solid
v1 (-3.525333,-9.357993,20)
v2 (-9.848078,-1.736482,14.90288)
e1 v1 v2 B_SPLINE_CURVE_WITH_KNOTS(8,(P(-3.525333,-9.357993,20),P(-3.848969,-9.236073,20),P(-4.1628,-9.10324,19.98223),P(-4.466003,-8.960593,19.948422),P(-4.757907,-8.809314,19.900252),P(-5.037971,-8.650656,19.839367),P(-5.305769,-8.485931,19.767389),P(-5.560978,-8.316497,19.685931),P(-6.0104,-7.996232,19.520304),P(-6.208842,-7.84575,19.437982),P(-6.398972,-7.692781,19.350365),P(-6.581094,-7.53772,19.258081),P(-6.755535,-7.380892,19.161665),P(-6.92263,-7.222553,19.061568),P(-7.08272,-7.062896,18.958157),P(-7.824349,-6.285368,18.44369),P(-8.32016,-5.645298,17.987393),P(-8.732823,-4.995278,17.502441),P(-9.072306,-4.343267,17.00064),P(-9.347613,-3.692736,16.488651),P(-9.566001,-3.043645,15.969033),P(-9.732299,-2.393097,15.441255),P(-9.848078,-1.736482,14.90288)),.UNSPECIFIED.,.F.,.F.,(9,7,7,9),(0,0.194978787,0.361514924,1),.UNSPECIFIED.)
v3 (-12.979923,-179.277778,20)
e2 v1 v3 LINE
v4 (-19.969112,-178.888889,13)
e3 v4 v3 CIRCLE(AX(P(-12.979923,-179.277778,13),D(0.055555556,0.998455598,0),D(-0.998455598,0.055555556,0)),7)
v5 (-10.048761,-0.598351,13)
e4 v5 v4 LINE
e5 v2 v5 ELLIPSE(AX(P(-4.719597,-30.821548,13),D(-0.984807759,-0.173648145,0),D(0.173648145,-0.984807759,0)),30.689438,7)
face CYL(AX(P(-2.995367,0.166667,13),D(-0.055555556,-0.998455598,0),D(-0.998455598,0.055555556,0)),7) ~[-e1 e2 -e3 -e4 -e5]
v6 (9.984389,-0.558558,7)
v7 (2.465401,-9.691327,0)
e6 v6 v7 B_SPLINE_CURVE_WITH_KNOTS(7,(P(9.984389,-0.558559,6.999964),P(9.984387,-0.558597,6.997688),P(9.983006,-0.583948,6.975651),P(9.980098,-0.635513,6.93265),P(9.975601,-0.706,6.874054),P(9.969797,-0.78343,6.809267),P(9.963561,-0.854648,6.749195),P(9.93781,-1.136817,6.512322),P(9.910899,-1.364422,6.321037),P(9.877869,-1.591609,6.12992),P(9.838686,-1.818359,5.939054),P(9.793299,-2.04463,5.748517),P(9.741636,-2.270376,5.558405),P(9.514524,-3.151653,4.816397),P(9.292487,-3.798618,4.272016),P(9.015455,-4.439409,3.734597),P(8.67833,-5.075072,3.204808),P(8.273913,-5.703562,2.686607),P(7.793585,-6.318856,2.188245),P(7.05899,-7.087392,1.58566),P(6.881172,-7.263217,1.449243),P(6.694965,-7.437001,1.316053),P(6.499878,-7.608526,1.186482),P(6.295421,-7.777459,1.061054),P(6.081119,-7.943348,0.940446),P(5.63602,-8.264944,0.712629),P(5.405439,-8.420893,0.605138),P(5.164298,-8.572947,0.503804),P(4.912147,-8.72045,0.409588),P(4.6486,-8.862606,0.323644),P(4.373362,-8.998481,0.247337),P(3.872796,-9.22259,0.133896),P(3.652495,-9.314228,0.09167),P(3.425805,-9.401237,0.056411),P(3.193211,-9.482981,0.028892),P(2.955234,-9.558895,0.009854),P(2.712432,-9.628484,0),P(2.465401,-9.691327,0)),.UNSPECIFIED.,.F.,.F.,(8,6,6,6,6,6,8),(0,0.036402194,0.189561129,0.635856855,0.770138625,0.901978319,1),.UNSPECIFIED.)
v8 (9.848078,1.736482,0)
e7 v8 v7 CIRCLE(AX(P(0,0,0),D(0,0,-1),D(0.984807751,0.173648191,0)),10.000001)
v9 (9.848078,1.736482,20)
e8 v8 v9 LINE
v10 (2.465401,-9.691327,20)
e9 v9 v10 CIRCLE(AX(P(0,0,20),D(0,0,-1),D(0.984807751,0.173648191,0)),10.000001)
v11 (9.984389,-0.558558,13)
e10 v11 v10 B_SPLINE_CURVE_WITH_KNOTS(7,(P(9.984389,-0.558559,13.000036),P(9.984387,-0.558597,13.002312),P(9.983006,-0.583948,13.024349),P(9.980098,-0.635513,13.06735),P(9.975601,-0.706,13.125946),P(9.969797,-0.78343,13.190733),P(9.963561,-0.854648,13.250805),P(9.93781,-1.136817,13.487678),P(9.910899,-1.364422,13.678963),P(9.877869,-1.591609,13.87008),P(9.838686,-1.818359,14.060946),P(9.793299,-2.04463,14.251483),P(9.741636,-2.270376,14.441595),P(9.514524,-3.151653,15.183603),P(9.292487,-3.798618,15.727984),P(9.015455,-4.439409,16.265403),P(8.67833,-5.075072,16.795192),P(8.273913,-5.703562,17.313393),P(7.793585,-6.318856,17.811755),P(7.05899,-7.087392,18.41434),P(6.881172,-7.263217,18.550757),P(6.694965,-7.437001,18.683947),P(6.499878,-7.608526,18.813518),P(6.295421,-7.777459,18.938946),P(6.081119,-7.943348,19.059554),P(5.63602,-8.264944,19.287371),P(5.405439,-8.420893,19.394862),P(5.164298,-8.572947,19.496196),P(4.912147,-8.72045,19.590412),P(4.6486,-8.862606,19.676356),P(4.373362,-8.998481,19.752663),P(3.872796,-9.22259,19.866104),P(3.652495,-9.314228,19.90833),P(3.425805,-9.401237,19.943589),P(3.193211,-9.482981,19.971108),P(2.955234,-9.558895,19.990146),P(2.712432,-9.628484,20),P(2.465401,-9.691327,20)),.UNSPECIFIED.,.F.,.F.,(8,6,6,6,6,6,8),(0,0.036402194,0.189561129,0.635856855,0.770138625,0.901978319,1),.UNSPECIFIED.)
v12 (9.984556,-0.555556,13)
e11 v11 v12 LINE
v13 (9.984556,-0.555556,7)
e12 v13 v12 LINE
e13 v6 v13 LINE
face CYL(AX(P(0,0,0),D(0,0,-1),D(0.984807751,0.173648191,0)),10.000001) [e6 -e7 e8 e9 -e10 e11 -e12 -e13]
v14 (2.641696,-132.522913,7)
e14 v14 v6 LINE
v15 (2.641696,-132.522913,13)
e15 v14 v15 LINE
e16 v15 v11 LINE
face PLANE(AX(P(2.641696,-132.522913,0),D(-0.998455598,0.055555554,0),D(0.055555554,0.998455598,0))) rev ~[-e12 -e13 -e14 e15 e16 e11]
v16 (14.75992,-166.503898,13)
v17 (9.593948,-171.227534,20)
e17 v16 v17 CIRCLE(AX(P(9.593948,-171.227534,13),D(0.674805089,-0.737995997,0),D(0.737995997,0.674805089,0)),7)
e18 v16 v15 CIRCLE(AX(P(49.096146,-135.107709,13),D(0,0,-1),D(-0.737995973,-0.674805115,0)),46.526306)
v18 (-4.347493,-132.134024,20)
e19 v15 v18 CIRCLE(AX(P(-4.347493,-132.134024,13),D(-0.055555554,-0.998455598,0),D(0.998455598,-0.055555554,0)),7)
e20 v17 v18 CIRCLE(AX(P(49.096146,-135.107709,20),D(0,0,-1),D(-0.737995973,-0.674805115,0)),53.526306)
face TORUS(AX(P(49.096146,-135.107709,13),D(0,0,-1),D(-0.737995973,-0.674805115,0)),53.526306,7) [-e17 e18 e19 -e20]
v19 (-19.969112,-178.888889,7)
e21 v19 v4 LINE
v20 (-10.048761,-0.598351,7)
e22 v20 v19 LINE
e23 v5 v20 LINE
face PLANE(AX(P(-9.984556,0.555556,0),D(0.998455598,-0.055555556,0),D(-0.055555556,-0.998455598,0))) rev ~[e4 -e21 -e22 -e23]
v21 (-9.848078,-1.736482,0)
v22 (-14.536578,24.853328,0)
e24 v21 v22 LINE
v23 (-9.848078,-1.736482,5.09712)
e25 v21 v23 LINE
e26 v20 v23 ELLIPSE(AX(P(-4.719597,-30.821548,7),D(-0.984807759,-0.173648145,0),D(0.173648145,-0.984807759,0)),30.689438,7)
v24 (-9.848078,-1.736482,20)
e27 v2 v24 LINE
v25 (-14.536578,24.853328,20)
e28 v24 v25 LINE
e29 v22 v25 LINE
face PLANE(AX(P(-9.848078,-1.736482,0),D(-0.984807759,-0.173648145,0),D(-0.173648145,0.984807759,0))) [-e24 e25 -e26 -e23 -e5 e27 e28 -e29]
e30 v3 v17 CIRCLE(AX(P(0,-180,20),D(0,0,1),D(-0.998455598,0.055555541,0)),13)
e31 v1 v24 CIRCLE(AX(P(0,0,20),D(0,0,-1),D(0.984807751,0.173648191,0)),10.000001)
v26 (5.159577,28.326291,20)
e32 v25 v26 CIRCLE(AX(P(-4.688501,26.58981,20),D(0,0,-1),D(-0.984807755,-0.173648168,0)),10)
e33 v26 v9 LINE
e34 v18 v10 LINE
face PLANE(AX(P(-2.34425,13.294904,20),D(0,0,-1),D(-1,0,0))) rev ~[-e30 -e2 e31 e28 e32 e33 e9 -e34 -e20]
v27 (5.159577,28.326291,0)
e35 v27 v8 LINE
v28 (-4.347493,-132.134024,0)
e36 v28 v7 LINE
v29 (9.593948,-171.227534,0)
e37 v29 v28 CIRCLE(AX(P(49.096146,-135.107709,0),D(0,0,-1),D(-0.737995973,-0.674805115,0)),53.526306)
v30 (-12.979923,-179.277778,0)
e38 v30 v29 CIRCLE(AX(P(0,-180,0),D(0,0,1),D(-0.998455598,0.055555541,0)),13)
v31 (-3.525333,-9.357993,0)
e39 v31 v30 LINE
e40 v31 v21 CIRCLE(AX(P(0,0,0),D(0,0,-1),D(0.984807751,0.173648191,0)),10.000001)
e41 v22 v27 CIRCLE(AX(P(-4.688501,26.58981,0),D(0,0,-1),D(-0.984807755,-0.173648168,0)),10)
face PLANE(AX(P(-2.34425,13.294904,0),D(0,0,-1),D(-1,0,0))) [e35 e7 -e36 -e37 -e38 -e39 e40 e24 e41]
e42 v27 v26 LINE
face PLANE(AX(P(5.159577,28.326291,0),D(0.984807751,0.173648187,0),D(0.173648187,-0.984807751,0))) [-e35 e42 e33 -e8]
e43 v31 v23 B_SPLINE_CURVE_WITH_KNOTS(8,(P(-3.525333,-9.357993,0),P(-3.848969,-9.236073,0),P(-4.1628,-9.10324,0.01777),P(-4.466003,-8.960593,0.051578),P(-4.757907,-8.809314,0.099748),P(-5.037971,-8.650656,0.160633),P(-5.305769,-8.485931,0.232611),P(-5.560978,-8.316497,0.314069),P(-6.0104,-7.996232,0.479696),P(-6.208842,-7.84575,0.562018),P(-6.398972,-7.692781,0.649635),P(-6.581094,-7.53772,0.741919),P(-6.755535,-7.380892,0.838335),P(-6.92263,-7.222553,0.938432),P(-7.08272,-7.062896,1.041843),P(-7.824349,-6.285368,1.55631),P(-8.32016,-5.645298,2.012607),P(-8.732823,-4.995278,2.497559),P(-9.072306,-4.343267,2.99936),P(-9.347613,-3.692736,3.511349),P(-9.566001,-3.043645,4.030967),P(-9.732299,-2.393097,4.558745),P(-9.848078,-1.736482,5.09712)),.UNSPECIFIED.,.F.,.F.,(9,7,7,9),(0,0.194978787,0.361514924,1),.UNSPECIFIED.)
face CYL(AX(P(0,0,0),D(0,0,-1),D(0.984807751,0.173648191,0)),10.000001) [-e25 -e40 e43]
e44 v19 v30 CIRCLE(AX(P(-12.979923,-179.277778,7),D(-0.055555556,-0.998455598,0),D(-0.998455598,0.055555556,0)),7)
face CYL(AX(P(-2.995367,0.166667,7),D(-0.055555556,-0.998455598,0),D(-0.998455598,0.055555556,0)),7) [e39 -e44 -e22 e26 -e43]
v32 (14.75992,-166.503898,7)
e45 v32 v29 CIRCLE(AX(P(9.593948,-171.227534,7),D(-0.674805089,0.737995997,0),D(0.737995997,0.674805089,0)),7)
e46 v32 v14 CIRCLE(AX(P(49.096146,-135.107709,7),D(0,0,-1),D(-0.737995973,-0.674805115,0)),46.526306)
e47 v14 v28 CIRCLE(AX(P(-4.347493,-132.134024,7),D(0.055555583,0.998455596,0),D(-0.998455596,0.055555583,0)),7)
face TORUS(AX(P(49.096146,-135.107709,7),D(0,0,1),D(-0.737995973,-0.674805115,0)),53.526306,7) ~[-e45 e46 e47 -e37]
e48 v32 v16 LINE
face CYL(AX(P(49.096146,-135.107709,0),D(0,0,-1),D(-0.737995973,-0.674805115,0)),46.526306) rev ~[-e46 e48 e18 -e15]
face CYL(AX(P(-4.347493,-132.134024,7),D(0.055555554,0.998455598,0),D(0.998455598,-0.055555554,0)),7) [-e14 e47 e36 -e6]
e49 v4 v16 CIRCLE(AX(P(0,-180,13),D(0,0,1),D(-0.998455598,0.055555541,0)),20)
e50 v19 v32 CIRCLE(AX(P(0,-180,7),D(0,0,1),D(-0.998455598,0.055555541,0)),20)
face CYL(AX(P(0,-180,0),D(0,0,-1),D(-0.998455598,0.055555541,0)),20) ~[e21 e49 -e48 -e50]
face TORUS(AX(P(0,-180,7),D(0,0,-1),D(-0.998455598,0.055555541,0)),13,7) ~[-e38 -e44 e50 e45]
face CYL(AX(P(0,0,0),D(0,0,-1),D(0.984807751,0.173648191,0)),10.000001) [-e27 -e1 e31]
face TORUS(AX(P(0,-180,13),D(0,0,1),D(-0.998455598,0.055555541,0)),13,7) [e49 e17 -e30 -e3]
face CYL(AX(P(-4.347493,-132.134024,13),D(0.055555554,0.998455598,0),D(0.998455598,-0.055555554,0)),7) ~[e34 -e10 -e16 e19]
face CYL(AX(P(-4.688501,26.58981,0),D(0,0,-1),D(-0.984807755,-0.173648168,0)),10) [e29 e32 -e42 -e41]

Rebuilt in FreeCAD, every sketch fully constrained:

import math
import FreeCAD as App
import Part
import Sketcher
Q = App.Units.Quantity


def edges_at(feature, points):
    """Names of the edges that pass closest to the given points."""
    edges = feature.Shape.Edges
    near = lambda p: min(range(len(edges)), key=lambda i: edges[i].distToShape(Part.Vertex(*p))[0])
    return sorted({f"Edge{near(p) + 1}" for p in points})

doc = App.newDocument("Part")
params = doc.addObject("Spreadsheet::Sheet", "Params")
for row, (alias, value) in enumerate([
    ("sketch1_radius", "20 mm"),
    ("sketch1_radius2", "10 mm"),
    ("pad1_length", "20 mm"),
    ("fillet_radius", "7 mm"),
    ("sketch2_radius", "10 mm"),
    ("sketch2_length", "27 mm"),
    ("pad2_length", "20 mm"),
], start=1):
    params.set(f"A{row}", alias)
    params.set(f"B{row}", "=" + value)
    params.setAlias(f"B{row}", alias)

body = doc.addObject("PartDesign::Body", "Body")

sketch1 = body.newObject("Sketcher::SketchObject", "Sketch")
sketch1.AttachmentSupport = (doc.getObject("XY_Plane"), [""])
sketch1.MapMode = "FlatFace"
sketch1.addGeometry([
    Part.LineSegment(App.Vector(-10, 1, 0), App.Vector(-20, -179, 0)),
    Part.ArcOfCircle(Part.Circle(App.Vector(0, -180, 0), App.Vector(0, 0, 1), 20), math.radians(177), math.radians(402)),
    Part.ArcOfCircle(Part.Circle(App.Vector(49, -135, 0), App.Vector(0, 0, 1), 47), math.radians(177), math.radians(222)),
    Part.LineSegment(App.Vector(3, -133, 0), App.Vector(10, -1, 0)),
    Part.ArcOfCircle(Part.Circle(App.Vector(0, 0, 0), App.Vector(0, 0, 1), 10), math.radians(-3), math.radians(177)),
], False)
sketch1.addConstraint([
    Sketcher.Constraint("Tangent", 0, 2, 1, 1),
    Sketcher.Constraint("Tangent", 1, 2, 2, 2),
    Sketcher.Constraint("Tangent", 2, 1, 3, 1),
    Sketcher.Constraint("Tangent", 3, 2, 4, 1),
    Sketcher.Constraint("Tangent", 4, 2, 0, 1),
    Sketcher.Constraint("Coincident", 4, 3, -1, 1),
    Sketcher.Constraint("PointOnObject", 1, 3, -2),
    Sketcher.Constraint("Parallel", 0, 3),
    Sketcher.Constraint("Radius", 1, Q("20 mm")),
    Sketcher.Constraint("Radius", 4, Q("10 mm")),
    Sketcher.Constraint("DistanceY", 1, 3, -1, 1, Q("180 mm")),
    Sketcher.Constraint("Radius", 2, Q("46.526306 mm")),
])
sketch1.setExpression("Constraints[8]", "Params.sketch1_radius")
sketch1.setExpression("Constraints[9]", "Params.sketch1_radius2")
pad1 = body.newObject("PartDesign::Pad", "Pad")
pad1.Profile = sketch1
pad1.setExpression("Length", "Params.pad1_length")
doc.recompute()

fillet = body.newObject("PartDesign::Fillet", "Fillet")
fillet.Base = (pad1, edges_at(pad1, [
    (6.313, -66.539, 20),
    (0.556, 9.985, 20),
    (-14.977, -89.167, 20),
    (6.718, -198.838, 20),
    (-14.977, -89.167, 0),
    (0.556, 9.985, 0),
    (6.313, -66.539, 0),
    (5.273, -150.736, 0),
    (6.718, -198.838, 0),
    (5.273, -150.736, 20),
]))
fillet.setExpression("Radius", "Params.fillet_radius")

sketch2 = body.newObject("Sketcher::SketchObject", "Sketch001")
sketch2.AttachmentSupport = (doc.getObject("XY_Plane"), [""])
sketch2.MapMode = "FlatFace"
sketch2.addGeometry([
    Part.LineSegment(App.Vector(10, 2, 0), App.Vector(5, 28, 0)),
    Part.ArcOfCircle(Part.Circle(App.Vector(-5, 27, 0), App.Vector(0, 0, 1), 10), math.radians(10), math.radians(190)),
    Part.LineSegment(App.Vector(-15, 25, 0), App.Vector(-10, -2, 0)),
    Part.ArcOfCircle(Part.Circle(App.Vector(0, 0, 0), App.Vector(0, 0, 1), 10), math.radians(-170), math.radians(10)),
], False)
sketch2.addConstraint([
    Sketcher.Constraint("Tangent", 0, 2, 1, 1),
    Sketcher.Constraint("Tangent", 1, 2, 2, 1),
    Sketcher.Constraint("Tangent", 2, 2, 3, 1),
    Sketcher.Constraint("Tangent", 3, 2, 0, 1),
    Sketcher.Constraint("Coincident", 3, 3, -1, 1),
    Sketcher.Constraint("Equal", 1, 3),
    Sketcher.Constraint("Radius", 1, Q("10 mm")),
    Sketcher.Constraint("Angle", 0, Q("100.000001 deg")),
    Sketcher.Constraint("Distance", 0, Q("27 mm")),
])
sketch2.setExpression("Constraints[6]", "Params.sketch2_radius")
sketch2.setExpression("Constraints[8]", "Params.sketch2_length")
pad2 = body.newObject("PartDesign::Pad", "Pad001")
pad2.Profile = sketch2
pad2.setExpression("Length", "Params.pad2_length")

doc.recompute()
